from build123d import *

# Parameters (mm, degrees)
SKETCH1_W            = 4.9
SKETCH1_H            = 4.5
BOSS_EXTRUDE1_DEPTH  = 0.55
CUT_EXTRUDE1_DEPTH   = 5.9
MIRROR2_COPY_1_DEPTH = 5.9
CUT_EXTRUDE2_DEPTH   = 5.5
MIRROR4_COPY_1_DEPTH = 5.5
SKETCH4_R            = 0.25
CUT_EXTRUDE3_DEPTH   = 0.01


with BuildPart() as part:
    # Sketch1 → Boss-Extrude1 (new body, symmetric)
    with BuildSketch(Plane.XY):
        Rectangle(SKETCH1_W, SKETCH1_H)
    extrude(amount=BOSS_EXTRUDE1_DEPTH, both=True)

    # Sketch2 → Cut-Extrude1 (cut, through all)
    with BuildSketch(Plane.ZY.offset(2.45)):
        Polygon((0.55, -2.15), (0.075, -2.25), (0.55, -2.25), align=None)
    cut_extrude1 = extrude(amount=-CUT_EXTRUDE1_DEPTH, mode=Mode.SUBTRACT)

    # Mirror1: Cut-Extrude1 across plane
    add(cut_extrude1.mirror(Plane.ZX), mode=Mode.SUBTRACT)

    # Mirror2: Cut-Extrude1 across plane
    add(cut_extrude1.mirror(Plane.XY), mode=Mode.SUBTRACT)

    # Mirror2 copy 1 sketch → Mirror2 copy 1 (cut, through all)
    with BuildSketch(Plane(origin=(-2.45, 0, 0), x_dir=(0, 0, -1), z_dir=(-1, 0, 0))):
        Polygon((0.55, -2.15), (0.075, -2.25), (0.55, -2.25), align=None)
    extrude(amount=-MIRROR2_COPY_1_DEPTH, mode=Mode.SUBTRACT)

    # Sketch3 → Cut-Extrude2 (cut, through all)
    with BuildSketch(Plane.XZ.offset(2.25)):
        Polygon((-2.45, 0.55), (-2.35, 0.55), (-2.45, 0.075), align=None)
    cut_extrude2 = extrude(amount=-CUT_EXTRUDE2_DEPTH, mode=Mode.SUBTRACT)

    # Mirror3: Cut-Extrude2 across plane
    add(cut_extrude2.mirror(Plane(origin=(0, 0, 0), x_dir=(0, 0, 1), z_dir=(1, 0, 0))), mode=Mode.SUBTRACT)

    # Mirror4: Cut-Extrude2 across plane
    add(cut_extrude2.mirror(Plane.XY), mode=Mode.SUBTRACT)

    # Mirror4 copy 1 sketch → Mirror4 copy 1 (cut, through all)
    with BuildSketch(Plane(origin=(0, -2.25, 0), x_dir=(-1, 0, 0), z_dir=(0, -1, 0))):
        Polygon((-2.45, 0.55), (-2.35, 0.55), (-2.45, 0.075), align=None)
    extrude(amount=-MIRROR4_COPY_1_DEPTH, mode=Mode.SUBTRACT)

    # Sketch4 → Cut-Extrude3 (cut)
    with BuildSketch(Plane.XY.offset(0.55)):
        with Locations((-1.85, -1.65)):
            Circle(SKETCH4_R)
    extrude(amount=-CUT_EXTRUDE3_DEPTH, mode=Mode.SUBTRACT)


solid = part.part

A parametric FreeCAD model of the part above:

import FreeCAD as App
import Part
import Sketcher

V = App.Vector

doc = App.newDocument("Part")
params = doc.addObject("Spreadsheet::Sheet", "Params")
for row, (alias, value) in enumerate([
    ("sketch1_width", "4.9 mm"),
    ("sketch1_height", "4.5 mm"),
    ("pad1_length", "1.1 mm"),
    ("sketch2_width", "0.1 mm"),
    ("sketch3_width", "0.1 mm"),
    ("sketch4_width", "0.1 mm"),
    ("sketch5_width", "0.1 mm"),
    ("sketch6_diameter", "0.5 mm"),
    ("pocket5_length", "0.01 mm"),
], start=1):
    params.set(f"A{row}", alias)
    params.set(f"B{row}", "=" + value)
    params.setAlias(f"B{row}", alias)

body = doc.addObject("PartDesign::Body", "Body")

sketch1 = body.newObject("Sketcher::SketchObject", "Sketch")
sketch1.AttachmentSupport = (doc.getObject("XY_Plane"), [""])
sketch1.MapMode = "FlatFace"
sketch1.addGeometry(Part.LineSegment(V(-2.5, 2.2, 0), V(-2.5, -2.2, 0)), False)
sketch1.addGeometry(Part.LineSegment(V(-2.5, -2.2, 0), V(2.5, -2.2, 0)), False)
sketch1.addGeometry(Part.LineSegment(V(2.5, -2.2, 0), V(2.5, 2.2, 0)), False)
sketch1.addGeometry(Part.LineSegment(V(2.5, 2.2, 0), V(-2.5, 2.2, 0)), False)
sketch1.addConstraint(Sketcher.Constraint("Coincident", 0, 2, 1, 1))
sketch1.addConstraint(Sketcher.Constraint("Coincident", 1, 2, 2, 1))
sketch1.addConstraint(Sketcher.Constraint("Coincident", 2, 2, 3, 1))
sketch1.addConstraint(Sketcher.Constraint("Coincident", 3, 2, 0, 1))
sketch1.addConstraint(Sketcher.Constraint("Vertical", 0))
sketch1.addConstraint(Sketcher.Constraint("Horizontal", 1))
sketch1.addConstraint(Sketcher.Constraint("Vertical", 2))
sketch1.addConstraint(Sketcher.Constraint("Horizontal", 3))
sketch1.addConstraint(Sketcher.Constraint("Symmetric", 0, 2, 2, 2, -1, 1))
sketch1.addConstraint(Sketcher.Constraint("DistanceX", 1, 1, 1, 2, 4.9))
sketch1.addConstraint(Sketcher.Constraint("DistanceY", 0, 2, 0, 1, 4.5))
sketch1.setExpression("Constraints[9]", "Params.sketch1_width")
sketch1.setExpression("Constraints[10]", "Params.sketch1_height")
pad1 = body.newObject("PartDesign::Pad", "Pad")
pad1.Profile = sketch1
pad1.setExpression("Length", "Params.pad1_length")
pad1.Midplane = True

sketch2 = body.newObject("Sketcher::SketchObject", "Sketch001")
sketch2.AttachmentSupport = (doc.getObject("YZ_Plane"), [""])
sketch2.MapMode = "FlatFace"
sketch2.AttachmentOffset = App.Placement(V(0, 0, -2.45), App.Rotation())
sketch2.addGeometry(Part.LineSegment(V(-2.15, 0.55, 0), V(-2.25, 0.07, 0)), False)
sketch2.addGeometry(Part.LineSegment(V(-2.25, 0.07, 0), V(-2.25, 0.55, 0)), False)
sketch2.addGeometry(Part.LineSegment(V(-2.25, 0.55, 0), V(-2.15, 0.55, 0)), False)
sketch2.addConstraint(Sketcher.Constraint("Coincident", 0, 2, 1, 1))
sketch2.addConstraint(Sketcher.Constraint("Coincident", 1, 2, 2, 1))
sketch2.addConstraint(Sketcher.Constraint("Coincident", 2, 2, 0, 1))
sketch2.addConstraint(Sketcher.Constraint("Vertical", 1))
sketch2.addConstraint(Sketcher.Constraint("Horizontal", 2))
sketch2.addConstraint(Sketcher.Constraint("DistanceX", 2, 1, 2, 2, 0.1))
sketch2.addConstraint(Sketcher.Constraint("DistanceY", 1, 1, 1, 2, 0.475))
sketch2.addConstraint(Sketcher.Constraint("DistanceX", 0, 2, -1, 1, 2.25))
sketch2.addConstraint(Sketcher.Constraint("DistanceY", -1, 1, 1, 2, 0.55))
sketch2.setExpression("Constraints[5]", "Params.sketch2_width")
pocket1 = body.newObject("PartDesign::Pocket", "Pocket")
pocket1.Profile = sketch2
pocket1.Type = "ThroughAll"
pocket1.Reversed = True
doc.recompute()

mirrored = body.newObject("PartDesign::Mirrored", "Mirrored")
mirrored.Originals = [pocket1]
mirrored.MirrorPlane = (doc.getObject("XZ_Plane"), [""])
body.Tip = mirrored
doc.recompute()

mirrored2 = body.newObject("PartDesign::Mirrored", "Mirrored001")
mirrored2.Originals = [pocket1]
mirrored2.MirrorPlane = (doc.getObject("XY_Plane"), [""])
body.Tip = mirrored2

sketch3 = body.newObject("Sketcher::SketchObject", "Sketch002")
sketch3.AttachmentSupport = (doc.getObject("YZ_Plane"), [""])
sketch3.MapMode = "FlatFace"
sketch3.AttachmentOffset = App.Placement(V(0, 0, -2.45), App.Rotation())
sketch3.addGeometry(Part.LineSegment(V(2.15, -0.55, 0), V(2.25, -0.07, 0)), False)
sketch3.addGeometry(Part.LineSegment(V(2.25, -0.07, 0), V(2.25, -0.55, 0)), False)
sketch3.addGeometry(Part.LineSegment(V(2.25, -0.55, 0), V(2.15, -0.55, 0)), False)
sketch3.addConstraint(Sketcher.Constraint("Coincident", 0, 2, 1, 1))
sketch3.addConstraint(Sketcher.Constraint("Coincident", 1, 2, 2, 1))
sketch3.addConstraint(Sketcher.Constraint("Coincident", 2, 2, 0, 1))
sketch3.addConstraint(Sketcher.Constraint("Vertical", 1))
sketch3.addConstraint(Sketcher.Constraint("Horizontal", 2))
sketch3.addConstraint(Sketcher.Constraint("DistanceX", 2, 2, 2, 1, 0.1))
sketch3.addConstraint(Sketcher.Constraint("DistanceY", 1, 2, 1, 1, 0.475))
sketch3.addConstraint(Sketcher.Constraint("DistanceX", -1, 1, 0, 2, 2.25))
sketch3.addConstraint(Sketcher.Constraint("DistanceY", 1, 2, -1, 1, 0.55))
sketch3.setExpression("Constraints[5]", "Params.sketch3_width")
pocket2 = body.newObject("PartDesign::Pocket", "Pocket001")
pocket2.Profile = sketch3
pocket2.Type = "ThroughAll"
pocket2.Reversed = True

sketch4 = body.newObject("Sketcher::SketchObject", "Sketch003")
sketch4.AttachmentSupport = (doc.getObject("XZ_Plane"), [""])
sketch4.MapMode = "FlatFace"
sketch4.AttachmentOffset = App.Placement(V(0, 0, 2.25), App.Rotation())
sketch4.addGeometry(Part.LineSegment(V(-2.35, 0.55, 0), V(-2.45, 0.55, 0)), False)
sketch4.addGeometry(Part.LineSegment(V(-2.45, 0.55, 0), V(-2.45, 0.07, 0)), False)
sketch4.addGeometry(Part.LineSegment(V(-2.45, 0.07, 0), V(-2.35, 0.55, 0)), False)
sketch4.addConstraint(Sketcher.Constraint("Coincident", 0, 2, 1, 1))
sketch4.addConstraint(Sketcher.Constraint("Coincident", 1, 2, 2, 1))
sketch4.addConstraint(Sketcher.Constraint("Coincident", 2, 2, 0, 1))
sketch4.addConstraint(Sketcher.Constraint("Horizontal", 0))
sketch4.addConstraint(Sketcher.Constraint("Vertical", 1))
sketch4.addConstraint(Sketcher.Constraint("DistanceX", 0, 2, 0, 1, 0.1))
sketch4.addConstraint(Sketcher.Constraint("DistanceY", 1, 2, 1, 1, 0.475))
sketch4.addConstraint(Sketcher.Constraint("DistanceX", 0, 2, -1, 1, 2.45))
sketch4.addConstraint(Sketcher.Constraint("DistanceY", -1, 1, 0, 2, 0.55))
sketch4.setExpression("Constraints[5]", "Params.sketch4_width")
pocket3 = body.newObject("PartDesign::Pocket", "Pocket002")
pocket3.Profile = sketch4
pocket3.Type = "ThroughAll"
doc.recompute()

mirrored3 = body.newObject("PartDesign::Mirrored", "Mirrored002")
mirrored3.Originals = [pocket3]
mirrored3.MirrorPlane = (doc.getObject("YZ_Plane"), [""])
body.Tip = mirrored3
doc.recompute()

mirrored4 = body.newObject("PartDesign::Mirrored", "Mirrored003")
mirrored4.Originals = [pocket3]
mirrored4.MirrorPlane = (doc.getObject("XY_Plane"), [""])
body.Tip = mirrored4

sketch5 = body.newObject("Sketcher::SketchObject", "Sketch004")
sketch5.AttachmentSupport = (doc.getObject("XZ_Plane"), [""])
sketch5.MapMode = "FlatFace"
sketch5.AttachmentOffset = App.Placement(V(0, 0, 2.25), App.Rotation())
sketch5.addGeometry(Part.LineSegment(V(2.35, -0.55, 0), V(2.45, -0.55, 0)), False)
sketch5.addGeometry(Part.LineSegment(V(2.45, -0.55, 0), V(2.45, -0.07, 0)), False)
sketch5.addGeometry(Part.LineSegment(V(2.45, -0.07, 0), V(2.35, -0.55, 0)), False)
sketch5.addConstraint(Sketcher.Constraint("Coincident", 0, 2, 1, 1))
sketch5.addConstraint(Sketcher.Constraint("Coincident", 1, 2, 2, 1))
sketch5.addConstraint(Sketcher.Constraint("Coincident", 2, 2, 0, 1))
sketch5.addConstraint(Sketcher.Constraint("Horizontal", 0))
sketch5.addConstraint(Sketcher.Constraint("Vertical", 1))
sketch5.addConstraint(Sketcher.Constraint("DistanceX", 0, 1, 0, 2, 0.1))
sketch5.addConstraint(Sketcher.Constraint("DistanceY", 1, 1, 1, 2, 0.475))
sketch5.addConstraint(Sketcher.Constraint("DistanceX", -1, 1, 0, 2, 2.45))
sketch5.addConstraint(Sketcher.Constraint("DistanceY", 0, 2, -1, 1, 0.55))
sketch5.setExpression("Constraints[5]", "Params.sketch5_width")
pocket4 = body.newObject("PartDesign::Pocket", "Pocket003")
pocket4.Profile = sketch5
pocket4.Type = "ThroughAll"

sketch6 = body.newObject("Sketcher::SketchObject", "Sketch005")
sketch6.AttachmentSupport = (doc.getObject("XY_Plane"), [""])
sketch6.MapMode = "FlatFace"
sketch6.AttachmentOffset = App.Placement(V(0, 0, 0.55), App.Rotation())
sketch6.addGeometry(Part.Circle(V(-1.85, -1.65, 0), V(0, 0, 1), 0.25), False)
sketch6.addConstraint(Sketcher.Constraint("Diameter", 0, 0.5))
sketch6.addConstraint(Sketcher.Constraint("DistanceX", 0, 3, -1, 1, 1.85))
sketch6.addConstraint(Sketcher.Constraint("DistanceY", 0, 3, -1, 1, 1.65))
sketch6.setExpression("Constraints[0]", "Params.sketch6_diameter")
pocket5 = body.newObject("PartDesign::Pocket", "Pocket004")
pocket5.Profile = sketch6
pocket5.setExpression("Length", "Params.pocket5_length")

doc.recompute()
